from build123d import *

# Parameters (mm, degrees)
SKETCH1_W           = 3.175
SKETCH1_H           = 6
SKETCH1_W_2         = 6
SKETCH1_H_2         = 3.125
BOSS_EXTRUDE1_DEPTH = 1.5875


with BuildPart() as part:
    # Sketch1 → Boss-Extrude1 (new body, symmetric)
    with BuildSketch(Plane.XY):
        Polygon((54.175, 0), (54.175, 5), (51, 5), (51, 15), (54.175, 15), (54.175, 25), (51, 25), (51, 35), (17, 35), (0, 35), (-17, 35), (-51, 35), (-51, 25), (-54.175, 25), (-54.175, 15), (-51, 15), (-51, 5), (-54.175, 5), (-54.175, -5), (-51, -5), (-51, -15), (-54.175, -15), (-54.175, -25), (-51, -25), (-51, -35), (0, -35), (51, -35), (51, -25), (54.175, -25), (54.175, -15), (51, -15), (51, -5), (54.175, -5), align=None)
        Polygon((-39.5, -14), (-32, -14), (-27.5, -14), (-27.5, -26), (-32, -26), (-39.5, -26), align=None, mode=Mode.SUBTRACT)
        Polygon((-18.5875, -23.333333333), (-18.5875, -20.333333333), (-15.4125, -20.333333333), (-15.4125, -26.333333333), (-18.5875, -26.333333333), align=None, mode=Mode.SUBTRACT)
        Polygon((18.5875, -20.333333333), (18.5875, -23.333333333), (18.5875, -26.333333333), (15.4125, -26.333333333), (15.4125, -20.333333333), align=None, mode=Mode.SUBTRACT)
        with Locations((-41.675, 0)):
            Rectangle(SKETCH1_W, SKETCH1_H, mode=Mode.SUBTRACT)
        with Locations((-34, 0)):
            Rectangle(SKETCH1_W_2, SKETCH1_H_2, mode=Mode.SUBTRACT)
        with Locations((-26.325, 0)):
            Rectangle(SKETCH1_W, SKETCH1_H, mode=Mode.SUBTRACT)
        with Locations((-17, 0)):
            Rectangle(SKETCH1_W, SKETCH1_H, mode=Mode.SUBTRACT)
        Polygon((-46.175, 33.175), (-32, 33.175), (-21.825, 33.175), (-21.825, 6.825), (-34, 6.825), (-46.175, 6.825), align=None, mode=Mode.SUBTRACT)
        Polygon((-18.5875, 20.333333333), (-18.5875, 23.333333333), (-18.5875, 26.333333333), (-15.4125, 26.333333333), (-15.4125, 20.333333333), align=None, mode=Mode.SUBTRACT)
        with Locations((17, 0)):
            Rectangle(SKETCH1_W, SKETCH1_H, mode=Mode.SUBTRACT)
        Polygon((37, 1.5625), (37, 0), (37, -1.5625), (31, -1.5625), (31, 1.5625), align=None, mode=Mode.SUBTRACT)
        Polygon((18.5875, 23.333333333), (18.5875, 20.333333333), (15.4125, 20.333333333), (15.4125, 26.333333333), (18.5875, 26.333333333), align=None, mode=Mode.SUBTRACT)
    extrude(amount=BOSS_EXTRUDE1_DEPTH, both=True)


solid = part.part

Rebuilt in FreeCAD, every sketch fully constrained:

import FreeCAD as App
import Part
import Sketcher
from FreeCAD import Vector


def add_polygon(sketch, points):
    """Adds a closed chain of lines whose ends are joined by coincident constraints."""
    first, n = sketch.GeometryCount, len(points)
    for a, b in zip(points, points[1:] + points[:1]):
        sketch.addGeometry(Part.LineSegment(App.Vector(*a, 0), App.Vector(*b, 0)), False)
    for i in range(n):
        sketch.addConstraint(Sketcher.Constraint("Coincident", first + i, 2, first + (i + 1) % n, 1))

doc = App.newDocument("Part")
body = doc.addObject("PartDesign::Body", "Body")

# Sketch on XY plane
sketch1 = body.newObject("Sketcher::SketchObject", "Sketch")
sketch1.AttachmentSupport = (doc.getObject("XY_Plane"), [""])
sketch1.MapMode = "FlatFace"
add_polygon(sketch1, [(54.175, 5), (51, 5), (51, 15), (54.175, 15), (54.175, 25), (51, 25), (51, 35), (-51, 35), (-51, 25), (-54.175, 25), (-54.175, 15), (-51, 15), (-51, 5), (-54.175, 5), (-54.175, -5), (-51, -5), (-51, -15), (-54.175, -15), (-54.175, -25), (-51, -25), (-51, -35), (51, -35), (51, -25), (54.175, -25), (54.175, -15), (51, -15), (51, -5), (54.175, -5)])  # lines 0-27
add_polygon(sketch1, [(-39.5, -26), (-39.5, -14), (-27.5, -14), (-27.5, -26)])  # lines 28-31
add_polygon(sketch1, [(-18.5875, -26.333333), (-18.5875, -20.333333), (-15.4125, -20.333333), (-15.4125, -26.333333)])  # lines 32-35
add_polygon(sketch1, [(-40.0875, -3), (-43.2625, -3), (-43.2625, 3), (-40.0875, 3)])  # lines 36-39
add_polygon(sketch1, [(-31, -1.5625), (-37, -1.5625), (-37, 1.5625), (-31, 1.5625)])  # lines 40-43
add_polygon(sketch1, [(-24.7375, -3), (-27.9125, -3), (-27.9125, 3), (-24.7375, 3)])  # lines 44-47
add_polygon(sketch1, [(-15.4125, -3), (-18.5875, -3), (-18.5875, 3), (-15.4125, 3)])  # lines 48-51
add_polygon(sketch1, [(15.4125, -20.333333), (18.5875, -20.333333), (18.5875, -26.333333), (15.4125, -26.333333)])  # lines 52-55
add_polygon(sketch1, [(18.5875, -3), (15.4125, -3), (15.4125, 3), (18.5875, 3)])  # lines 56-59
add_polygon(sketch1, [(31, 1.5625), (37, 1.5625), (37, -1.5625), (31, -1.5625)])  # lines 60-63
add_polygon(sketch1, [(-46.175, 6.825), (-46.175, 33.175), (-21.825, 33.175), (-21.825, 6.825)])  # lines 64-67
add_polygon(sketch1, [(-15.4125, 20.333333), (-18.5875, 20.333333), (-18.5875, 26.333333), (-15.4125, 26.333333)])  # lines 68-71
add_polygon(sketch1, [(18.5875, 26.333333), (18.5875, 20.333333), (15.4125, 20.333333), (15.4125, 26.333333)])  # lines 72-75
sketch1.addConstraint([
    Sketcher.Constraint("Horizontal", 0),
    Sketcher.Constraint("Vertical", 1),
    Sketcher.Constraint("Horizontal", 2),
    Sketcher.Constraint("Vertical", 3),
    Sketcher.Constraint("Horizontal", 4),
    Sketcher.Constraint("Vertical", 5),
    Sketcher.Constraint("Horizontal", 6),
    Sketcher.Constraint("Vertical", 7),
    Sketcher.Constraint("Horizontal", 8),
    Sketcher.Constraint("Vertical", 9),
    Sketcher.Constraint("Horizontal", 10),
    Sketcher.Constraint("Vertical", 11),
    Sketcher.Constraint("Horizontal", 12),
    Sketcher.Constraint("Vertical", 13),
    Sketcher.Constraint("Horizontal", 14),
    Sketcher.Constraint("Vertical", 15),
    Sketcher.Constraint("Horizontal", 16),
    Sketcher.Constraint("Vertical", 17),
    Sketcher.Constraint("Horizontal", 18),
    Sketcher.Constraint("Vertical", 19),
    Sketcher.Constraint("Horizontal", 20),
    Sketcher.Constraint("Vertical", 21),
    Sketcher.Constraint("Horizontal", 22),
    Sketcher.Constraint("Vertical", 23),
    Sketcher.Constraint("Horizontal", 24),
    Sketcher.Constraint("Vertical", 25),
    Sketcher.Constraint("Horizontal", 26),
    Sketcher.Constraint("Vertical", 27),
    Sketcher.Constraint("Vertical", 28),
    Sketcher.Constraint("Horizontal", 29),
    Sketcher.Constraint("Vertical", 30),
    Sketcher.Constraint("Horizontal", 31),
    Sketcher.Constraint("Vertical", 32),
    Sketcher.Constraint("Horizontal", 33),
    Sketcher.Constraint("Vertical", 34),
    Sketcher.Constraint("Horizontal", 35),
    Sketcher.Constraint("Horizontal", 36),
    Sketcher.Constraint("Vertical", 37),
    Sketcher.Constraint("Horizontal", 38),
    Sketcher.Constraint("Vertical", 39),
    Sketcher.Constraint("Horizontal", 40),
    Sketcher.Constraint("Vertical", 41),
    Sketcher.Constraint("Horizontal", 42),
    Sketcher.Constraint("Vertical", 43),
    Sketcher.Constraint("Horizontal", 44),
    Sketcher.Constraint("Vertical", 45),
    Sketcher.Constraint("Horizontal", 46),
    Sketcher.Constraint("Vertical", 47),
    Sketcher.Constraint("Horizontal", 48),
    Sketcher.Constraint("Vertical", 49),
    Sketcher.Constraint("Horizontal", 50),
    Sketcher.Constraint("Vertical", 51),
    Sketcher.Constraint("Horizontal", 52),
    Sketcher.Constraint("Vertical", 53),
    Sketcher.Constraint("Horizontal", 54),
    Sketcher.Constraint("Vertical", 55),
    Sketcher.Constraint("Horizontal", 56),
    Sketcher.Constraint("Vertical", 57),
    Sketcher.Constraint("Horizontal", 58),
    Sketcher.Constraint("Vertical", 59),
    Sketcher.Constraint("Horizontal", 60),
    Sketcher.Constraint("Vertical", 61),
    Sketcher.Constraint("Horizontal", 62),
    Sketcher.Constraint("Vertical", 63),
    Sketcher.Constraint("Vertical", 64),
    Sketcher.Constraint("Horizontal", 65),
    Sketcher.Constraint("Vertical", 66),
    Sketcher.Constraint("Horizontal", 67),
    Sketcher.Constraint("Horizontal", 68),
    Sketcher.Constraint("Vertical", 69),
    Sketcher.Constraint("Horizontal", 70),
    Sketcher.Constraint("Vertical", 71),
    Sketcher.Constraint("Vertical", 72),
    Sketcher.Constraint("Horizontal", 73),
    Sketcher.Constraint("Vertical", 74),
    Sketcher.Constraint("Horizontal", 75),
    Sketcher.Constraint("Symmetric", 0, 2, 14, 2, -1, 1),
    Sketcher.Constraint("Symmetric", 2, 2, 16, 2, -1, 1),
    Sketcher.Constraint("Symmetric", 4, 2, 18, 2, -1, 1),
    Sketcher.Constraint("Symmetric", 6, 2, 20, 2, -1, 1),
    Sketcher.Constraint("Symmetric", 8, 2, 22, 2, -1, 1),
    Sketcher.Constraint("Symmetric", 10, 2, 24, 2, -1, 1),
    Sketcher.Constraint("Symmetric", 12, 2, 26, 2, -1, 1),
    Sketcher.Constraint("Symmetric", 50, 2, 56, 2, -1, 1),
    Sketcher.Constraint("Symmetric", 48, 2, 58, 2, -1, 1),
    Sketcher.Constraint("Symmetric", 40, 2, 60, 2, -1, 1),
    Sketcher.Constraint("Symmetric", 42, 2, 62, 2, -1, 1),
    Sketcher.Constraint("Symmetric", 52, 2, 68, 2, -1, 1),
    Sketcher.Constraint("Symmetric", 54, 2, 70, 2, -1, 1),
    Sketcher.Constraint("Symmetric", 32, 2, 72, 2, -1, 1),
    Sketcher.Constraint("Symmetric", 34, 2, 74, 2, -1, 1),
    Sketcher.Constraint("Symmetric", 4, 2, 7, 2, -2),
    Sketcher.Constraint("Symmetric", 2, 2, 9, 2, -2),
    Sketcher.Constraint("Symmetric", 0, 2, 11, 2, -2),
    Sketcher.Constraint("Symmetric", 32, 2, 52, 2, -2),
    Sketcher.Constraint("Symmetric", 34, 2, 54, 2, -2),
    Sketcher.Constraint("Horizontal", 39, 2, 44, 2),
    Sketcher.Constraint("Horizontal", 38, 2, 45, 2),
    Sketcher.Constraint("Horizontal", 47, 2, 48, 2),
    Sketcher.Constraint("Horizontal", 46, 2, 49, 2),
    Sketcher.Constraint("Horizontal", 51, 2, 56, 2),
    Sketcher.Constraint("Horizontal", 42, 2, 60, 2),
    Sketcher.Constraint("Vertical", 1, 2, 4, 2),
    Sketcher.Constraint("Vertical", 9, 2, 12, 2),
    Sketcher.Constraint("Vertical", 35, 2, 48, 2),
    Sketcher.Constraint("Vertical", 34, 2, 50, 2),
    Sketcher.Constraint("Equal", 26, 33),
    Sketcher.Constraint("Equal", 35, 36),
    Sketcher.Constraint("Equal", 38, 44),
    Sketcher.Constraint("Equal", 1, 3),
    Sketcher.Constraint("Equal", 3, 5),
    Sketcher.Constraint("Equal", 11, 13),
    Sketcher.Constraint("Equal", 31, 28),
    Sketcher.Constraint("Equal", 62, 32),
    Sketcher.Constraint("Equal", 34, 37),
    Sketcher.Constraint("DistanceX", 6, 2, 6, 1, 102.0),
    Sketcher.Constraint("DistanceX", 29, 1, 29, 2, 12.0),
    Sketcher.Constraint("DistanceX", 40, 2, 40, 1, 6.0),
    Sketcher.Constraint("DistanceY", 1, 1, 1, 2, 10.0),
    Sketcher.Constraint("DistanceY", 28, 2, -1, 1, 14.0),
    Sketcher.Constraint("DistanceX", 40, 2, -1, 1, 37.0),
    Sketcher.Constraint("DistanceX", 65, 1, 65, 2, 24.35),
    Sketcher.Constraint("DistanceY", 64, 1, 64, 2, 26.35),
    Sketcher.Constraint("DistanceX", 28, 2, -1, 1, 39.5),
    Sketcher.Constraint("DistanceX", 0, 2, 0, 1, 3.175),
    Sketcher.Constraint("DistanceY", 41, 1, 41, 2, 3.125),
    Sketcher.Constraint("DistanceX", 64, 2, -1, 1, 46.175),
    Sketcher.Constraint("DistanceY", -1, 1, 64, 2, 33.175),
    Sketcher.Constraint("DistanceX", 32, 2, -1, 1, 18.5875),
    Sketcher.Constraint("DistanceX", 36, 2, -1, 1, 43.2625),
    Sketcher.Constraint("DistanceX", 44, 2, -1, 1, 27.9125),
    Sketcher.Constraint("DistanceY", 32, 2, -1, 1, 20.333333),
])
pad1 = body.newObject("PartDesign::Pad", "Pad")
pad1.Profile = sketch1
pad1.Length = 3.175
pad1.Midplane = True

doc.recompute()
